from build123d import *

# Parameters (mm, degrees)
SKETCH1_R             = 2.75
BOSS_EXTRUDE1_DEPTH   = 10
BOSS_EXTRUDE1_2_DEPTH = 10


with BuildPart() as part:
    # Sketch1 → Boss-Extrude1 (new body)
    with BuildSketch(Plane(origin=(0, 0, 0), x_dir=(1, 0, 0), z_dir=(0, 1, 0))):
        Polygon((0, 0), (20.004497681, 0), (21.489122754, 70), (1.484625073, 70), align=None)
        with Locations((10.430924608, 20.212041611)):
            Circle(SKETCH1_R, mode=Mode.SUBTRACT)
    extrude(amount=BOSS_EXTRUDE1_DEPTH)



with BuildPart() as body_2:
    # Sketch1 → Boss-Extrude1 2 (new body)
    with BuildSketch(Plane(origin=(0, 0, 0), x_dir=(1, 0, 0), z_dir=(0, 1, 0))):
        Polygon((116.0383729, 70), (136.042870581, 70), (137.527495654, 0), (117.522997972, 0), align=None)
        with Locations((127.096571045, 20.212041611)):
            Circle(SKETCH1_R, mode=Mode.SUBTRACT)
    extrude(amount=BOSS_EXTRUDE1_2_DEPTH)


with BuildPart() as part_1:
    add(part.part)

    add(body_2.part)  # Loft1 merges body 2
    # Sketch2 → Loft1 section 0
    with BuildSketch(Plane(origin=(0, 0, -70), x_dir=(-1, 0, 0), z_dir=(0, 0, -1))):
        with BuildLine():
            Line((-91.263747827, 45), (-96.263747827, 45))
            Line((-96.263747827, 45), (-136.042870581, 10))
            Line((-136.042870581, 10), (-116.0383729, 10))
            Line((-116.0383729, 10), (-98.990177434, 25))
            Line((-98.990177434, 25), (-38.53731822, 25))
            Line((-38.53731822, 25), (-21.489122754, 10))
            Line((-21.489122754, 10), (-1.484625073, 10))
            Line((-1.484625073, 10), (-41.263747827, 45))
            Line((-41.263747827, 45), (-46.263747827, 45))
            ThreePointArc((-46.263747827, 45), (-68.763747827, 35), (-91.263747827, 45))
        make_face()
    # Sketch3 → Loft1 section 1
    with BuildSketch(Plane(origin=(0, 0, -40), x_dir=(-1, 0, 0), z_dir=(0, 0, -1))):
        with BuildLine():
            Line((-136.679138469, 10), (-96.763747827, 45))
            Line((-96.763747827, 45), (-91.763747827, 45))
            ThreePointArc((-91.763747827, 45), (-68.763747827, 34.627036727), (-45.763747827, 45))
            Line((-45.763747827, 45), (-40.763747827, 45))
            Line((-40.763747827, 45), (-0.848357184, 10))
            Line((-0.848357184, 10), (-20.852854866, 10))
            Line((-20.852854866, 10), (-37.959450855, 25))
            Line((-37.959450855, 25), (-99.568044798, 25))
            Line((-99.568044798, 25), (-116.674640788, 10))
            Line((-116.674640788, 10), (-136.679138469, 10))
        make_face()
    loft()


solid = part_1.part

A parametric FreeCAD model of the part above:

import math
import FreeCAD as App
import Part
import Sketcher
from FreeCAD import Vector


def add_polygon(sketch, points):
    """Adds a closed chain of lines whose ends are joined by coincident constraints."""
    first, n = sketch.GeometryCount, len(points)
    for a, b in zip(points, points[1:] + points[:1]):
        sketch.addGeometry(Part.LineSegment(App.Vector(*a, 0), App.Vector(*b, 0)), False)
    for i in range(n):
        sketch.addConstraint(Sketcher.Constraint("Coincident", first + i, 2, first + (i + 1) % n, 1))

doc = App.newDocument("Part")
params = doc.addObject("Spreadsheet::Sheet", "Params")
for row, (alias, value) in enumerate([
    ("sketch1_diameter", "5.5 mm"),
    ("pad1_length", "10 mm"),
    ("sketch2_diameter", "5.5 mm"),
    ("pad2_length", "10 mm"),
    ("sketch3_width", "5 mm"),
    ("sketch4_width", "5 mm"),
], start=1):
    params.set(f"A{row}", alias)
    params.set(f"B{row}", "=" + value)
    params.setAlias(f"B{row}", alias)

body = doc.addObject("PartDesign::Body", "Body")

# Sketch on XZ plane
sketch1 = doc.addObject("Sketcher::SketchObject", "Sketch")
body.addObject(sketch1)
sketch1.AttachmentSupport = (doc.XZ_Plane, [""])
sketch1.MapMode = "FlatFace"
add_polygon(sketch1, [(0, 0), (20, 0), (21.5, -70), (1.5, -70)])  # lines 0-3
sketch1.addGeometry(Part.Circle(Vector(10.4, -20.2, 0), Vector(0, 0, 1), 2.8), False)  # 4
sketch1.addConstraint([
    Sketcher.Constraint("Horizontal", 0),
    Sketcher.Constraint("Horizontal", 2),
    Sketcher.Constraint("Coincident", 3, 2, -1, 1),
    Sketcher.Constraint("Parallel", 1, 3),
    Sketcher.Constraint("Diameter", 4, 5.5),
    Sketcher.Constraint("DistanceY", 1, 2, -1, 1, 70.0),
    Sketcher.Constraint("DistanceX", 4, 3, 1, 2, 11.058198),
    Sketcher.Constraint("DistanceX", 2, 2, 4, 3, 8.9463),
    Sketcher.Constraint("Distance", 1, 70.015742),
    Sketcher.Constraint("DistanceY", 4, 3, -1, 1, 20.212042),
])
sketch1.setExpression("Constraints[8]", "Params.sketch1_diameter")
pad1 = doc.addObject("PartDesign::Pad", "Pad")
body.addObject(pad1)
pad1.Profile = sketch1
pad1.setExpression("Length", "Params.pad1_length")
pad1.Reversed = True
body2 = doc.addObject("PartDesign::Body", "Body001")

# Sketch on XZ plane
sketch2 = doc.addObject("Sketcher::SketchObject", "Sketch001")
body2.addObject(sketch2)
sketch2.AttachmentSupport = (doc.getObject("XZ_Plane001"), [""])
sketch2.MapMode = "FlatFace"
add_polygon(sketch2, [(136, -70), (116, -70), (117.5, 0), (137.5, 0)])  # lines 0-3
sketch2.addGeometry(Part.Circle(Vector(127.1, -20.2, 0), Vector(0, 0, 1), 2.8), False)  # 4
sketch2.addConstraint([
    Sketcher.Constraint("Horizontal", 0),
    Sketcher.Constraint("Horizontal", 2),
    Sketcher.Constraint("PointOnObject", 1, 2, -1),
    Sketcher.Constraint("Parallel", 1, 3),
    Sketcher.Constraint("Diameter", 4, 5.5),
    Sketcher.Constraint("DistanceY", 0, 2, -1, 1, 70.0),
    Sketcher.Constraint("DistanceX", 0, 2, 4, 3, 11.058198),
    Sketcher.Constraint("DistanceX", 4, 3, 3, 2, 8.9463),
    Sketcher.Constraint("Distance", 1, 70.015742),
    Sketcher.Constraint("DistanceX", -1, 1, 4, 3, 127.096571),
    Sketcher.Constraint("DistanceY", 4, 3, -1, 1, 20.212042),
])
sketch2.setExpression("Constraints[8]", "Params.sketch2_diameter")
pad2 = doc.addObject("PartDesign::Pad", "Pad001")
body2.addObject(pad2)
pad2.Profile = sketch2
pad2.setExpression("Length", "Params.pad2_length")
pad2.Reversed = True
body.AllowCompound = True
doc.recompute()

boolean = doc.addObject("PartDesign::Boolean", "Boolean")
body.addObject(boolean)
boolean.Type = "Fuse"
boolean.addObjects([body2])

# Sketch on XY plane
sketch3 = doc.addObject("Sketcher::SketchObject", "Sketch002")
body.addObject(sketch3)
sketch3.AttachmentSupport = (doc.XY_Plane, [""])
sketch3.MapMode = "FlatFace"
sketch3.AttachmentOffset = App.Placement(Vector(0, 0, -70), App.Rotation())
sketch3.addGeometry([
    Part.LineSegment(Vector(91, 45, 0), Vector(96, 45, 0)),  # 0
    Part.LineSegment(Vector(96, 45, 0), Vector(136, 10, 0)),  # 1
    Part.LineSegment(Vector(136, 10, 0), Vector(116, 10, 0)),  # 2
    Part.LineSegment(Vector(116, 10, 0), Vector(99, 25, 0)),  # 3
    Part.LineSegment(Vector(99, 25, 0), Vector(39, 25, 0)),  # 4
    Part.LineSegment(Vector(39, 25, 0), Vector(21, 10, 0)),  # 5
    Part.LineSegment(Vector(21, 10, 0), Vector(1, 10, 0)),  # 6
    Part.LineSegment(Vector(1, 10, 0), Vector(41, 45, 0)),  # 7
    Part.LineSegment(Vector(41, 45, 0), Vector(46, 45, 0)),  # 8
    Part.ArcOfCircle(Part.Circle(Vector(69, 65, 0), Vector(0, 0, 1), 30), math.radians(-138), math.radians(-42)),  # 9
], False)
sketch3.addConstraint([
    Sketcher.Constraint("Coincident", 0, 2, 1, 1),
    Sketcher.Constraint("Coincident", 1, 2, 2, 1),
    Sketcher.Constraint("Coincident", 2, 2, 3, 1),
    Sketcher.Constraint("Coincident", 3, 2, 4, 1),
    Sketcher.Constraint("Coincident", 4, 2, 5, 1),
    Sketcher.Constraint("Coincident", 5, 2, 6, 1),
    Sketcher.Constraint("Coincident", 6, 2, 7, 1),
    Sketcher.Constraint("Coincident", 7, 2, 8, 1),
    Sketcher.Constraint("Coincident", 8, 2, 9, 1),
    Sketcher.Constraint("Coincident", 9, 2, 0, 1),
    Sketcher.Constraint("Horizontal", 0),
    Sketcher.Constraint("Horizontal", 2),
    Sketcher.Constraint("Horizontal", 4),
    Sketcher.Constraint("Horizontal", 6),
    Sketcher.Constraint("Horizontal", 8),
    Sketcher.Constraint("Parallel", 1, 3),
    Sketcher.Constraint("Parallel", 5, 7),
    Sketcher.Constraint("Horizontal", 2, 2, 5, 2),
    Sketcher.Constraint("Horizontal", 0, 2, 7, 2),
    Sketcher.Constraint("Equal", 2, 6),
    Sketcher.Constraint("Equal", 0, 8),
    Sketcher.Constraint("Equal", 3, 5),
    Sketcher.Constraint("DistanceX", 0, 1, 0, 2, 5.0),
    Sketcher.Constraint("DistanceY", -1, 1, 0, 2, 45.0),
    Sketcher.Constraint("DistanceY", -1, 1, 1, 2, 10.0),
    Sketcher.Constraint("DistanceY", -1, 1, 3, 2, 25.0),
    Sketcher.Constraint("DistanceX", 7, 2, 0, 2, 55.0),
    Sketcher.Constraint("Radius", 9, 30.3125),
    Sketcher.Constraint("Distance", 1, 52.984702),
    Sketcher.Constraint("DistanceX", 4, 2, 4, 1, 60.452859),
    Sketcher.Constraint("DistanceX", -1, 1, 1, 2, 136.042871),
])
sketch3.setExpression("Constraints[22]", "Params.sketch3_width")

# Sketch on XY plane
sketch4 = doc.addObject("Sketcher::SketchObject", "Sketch003")
body.addObject(sketch4)
sketch4.AttachmentSupport = (doc.XY_Plane, [""])
sketch4.MapMode = "FlatFace"
sketch4.AttachmentOffset = App.Placement(Vector(0, 0, -40), App.Rotation())
sketch4.addGeometry([
    Part.LineSegment(Vector(97, 45, 0), Vector(137, 10, 0)),  # 0
    Part.LineSegment(Vector(137, 10, 0), Vector(117, 10, 0)),  # 1
    Part.LineSegment(Vector(117, 10, 0), Vector(100, 25, 0)),  # 2
    Part.LineSegment(Vector(100, 25, 0), Vector(38, 25, 0)),  # 3
    Part.LineSegment(Vector(38, 25, 0), Vector(21, 10, 0)),  # 4
    Part.LineSegment(Vector(21, 10, 0), Vector(1, 10, 0)),  # 5
    Part.LineSegment(Vector(1, 10, 0), Vector(41, 45, 0)),  # 6
    Part.LineSegment(Vector(41, 45, 0), Vector(46, 45, 0)),  # 7
    Part.ArcOfCircle(Part.Circle(Vector(69, 65, 0), Vector(0, 0, 1), 31), math.radians(-139), math.radians(-41)),  # 8
    Part.LineSegment(Vector(92, 45, 0), Vector(97, 45, 0)),  # 9
], False)
sketch4.addConstraint([
    Sketcher.Constraint("Coincident", 0, 2, 1, 1),
    Sketcher.Constraint("Coincident", 1, 2, 2, 1),
    Sketcher.Constraint("Coincident", 2, 2, 3, 1),
    Sketcher.Constraint("Coincident", 3, 2, 4, 1),
    Sketcher.Constraint("Coincident", 4, 2, 5, 1),
    Sketcher.Constraint("Coincident", 5, 2, 6, 1),
    Sketcher.Constraint("Coincident", 6, 2, 7, 1),
    Sketcher.Constraint("Coincident", 7, 2, 8, 1),
    Sketcher.Constraint("Coincident", 8, 2, 9, 1),
    Sketcher.Constraint("Coincident", 9, 2, 0, 1),
    Sketcher.Constraint("Horizontal", 1),
    Sketcher.Constraint("Horizontal", 3),
    Sketcher.Constraint("Horizontal", 5),
    Sketcher.Constraint("Horizontal", 7),
    Sketcher.Constraint("Horizontal", 9),
    Sketcher.Constraint("Parallel", 0, 2),
    Sketcher.Constraint("Parallel", 4, 6),
    Sketcher.Constraint("Horizontal", 1, 2, 4, 2),
    Sketcher.Constraint("Horizontal", 7, 2, 8, 2),
    Sketcher.Constraint("Equal", 1, 5),
    Sketcher.Constraint("Equal", 7, 9),
    Sketcher.Constraint("Equal", 2, 4),
    Sketcher.Constraint("DistanceX", 7, 1, 7, 2, 5.0),
    Sketcher.Constraint("DistanceY", -1, 1, 0, 2, 10.0),
    Sketcher.Constraint("DistanceY", -1, 1, 2, 2, 25.0),
    Sketcher.Constraint("DistanceY", -1, 1, 6, 2, 45.0),
    Sketcher.Constraint("DistanceX", 6, 2, 8, 3, 28.0),
    Sketcher.Constraint("Radius", 8, 30.685463),
    Sketcher.Constraint("DistanceX", 1, 2, 1, 1, 20.004498),
    Sketcher.Constraint("DistanceX", 3, 2, 3, 1, 61.608594),
    Sketcher.Constraint("DistanceX", -1, 1, 0, 2, 136.679138),
])
sketch4.setExpression("Constraints[22]", "Params.sketch4_width")

additiveloft = doc.addObject("PartDesign::AdditiveLoft", "AdditiveLoft")
body.addObject(additiveloft)
additiveloft.Profile = sketch3
additiveloft.Sections = [sketch4]

doc.recompute()
